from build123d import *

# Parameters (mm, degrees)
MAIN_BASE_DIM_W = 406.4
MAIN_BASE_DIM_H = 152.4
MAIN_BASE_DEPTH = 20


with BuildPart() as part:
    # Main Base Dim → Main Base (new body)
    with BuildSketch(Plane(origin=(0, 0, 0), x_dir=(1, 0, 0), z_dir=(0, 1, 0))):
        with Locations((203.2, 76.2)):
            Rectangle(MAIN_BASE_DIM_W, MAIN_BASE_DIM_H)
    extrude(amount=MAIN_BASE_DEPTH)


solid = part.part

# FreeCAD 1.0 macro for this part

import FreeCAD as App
import Part
import Sketcher
from FreeCAD import Vector
Q = App.Units.Quantity

doc = App.newDocument("Part")
params = doc.addObject("Spreadsheet::Sheet", "Params")
for row, (alias, value) in enumerate([
    ("sketch1_width", "16 in"),
    ("sketch1_height", "6 in"),
    ("pad1_length", "20 mm"),
], start=1):
    params.set(f"A{row}", alias)
    params.set(f"B{row}", "=" + value)
    params.setAlias(f"B{row}", alias)

body = doc.addObject("PartDesign::Body", "Body")

sketch1 = body.newObject("Sketcher::SketchObject", "Sketch")
sketch1.AttachmentSupport = (doc.getObject("XZ_Plane"), [""])
sketch1.MapMode = "FlatFace"
sketch1.addGeometry([
    Part.LineSegment(Vector(0, -152.4, 0), Vector(0, 0, 0)),
    Part.LineSegment(Vector(0, 0, 0), Vector(406.4, 0, 0)),
    Part.LineSegment(Vector(406.4, 0, 0), Vector(406.4, -152.4, 0)),
    Part.LineSegment(Vector(406.4, -152.4, 0), Vector(0, -152.4, 0)),
], False)
sketch1.addConstraint([
    Sketcher.Constraint("Coincident", 0, 2, 1, 1),
    Sketcher.Constraint("Coincident", 1, 2, 2, 1),
    Sketcher.Constraint("Coincident", 2, 2, 3, 1),
    Sketcher.Constraint("Coincident", 3, 2, 0, 1),
    Sketcher.Constraint("Vertical", 0),
    Sketcher.Constraint("Horizontal", 1),
    Sketcher.Constraint("Vertical", 2),
    Sketcher.Constraint("Horizontal", 3),
    Sketcher.Constraint("Coincident", 0, 2, -1, 1),
    Sketcher.Constraint("DistanceX", 1, 1, 1, 2, Q("16 in")),
    Sketcher.Constraint("DistanceY", 0, 1, 0, 2, Q("6 in")),
])
sketch1.setExpression("Constraints[9]", "Params.sketch1_width")
sketch1.setExpression("Constraints[10]", "Params.sketch1_height")
pad1 = body.newObject("PartDesign::Pad", "Pad")
pad1.Profile = sketch1
pad1.setExpression("Length", "Params.pad1_length")
pad1.Reversed = True

doc.recompute()
